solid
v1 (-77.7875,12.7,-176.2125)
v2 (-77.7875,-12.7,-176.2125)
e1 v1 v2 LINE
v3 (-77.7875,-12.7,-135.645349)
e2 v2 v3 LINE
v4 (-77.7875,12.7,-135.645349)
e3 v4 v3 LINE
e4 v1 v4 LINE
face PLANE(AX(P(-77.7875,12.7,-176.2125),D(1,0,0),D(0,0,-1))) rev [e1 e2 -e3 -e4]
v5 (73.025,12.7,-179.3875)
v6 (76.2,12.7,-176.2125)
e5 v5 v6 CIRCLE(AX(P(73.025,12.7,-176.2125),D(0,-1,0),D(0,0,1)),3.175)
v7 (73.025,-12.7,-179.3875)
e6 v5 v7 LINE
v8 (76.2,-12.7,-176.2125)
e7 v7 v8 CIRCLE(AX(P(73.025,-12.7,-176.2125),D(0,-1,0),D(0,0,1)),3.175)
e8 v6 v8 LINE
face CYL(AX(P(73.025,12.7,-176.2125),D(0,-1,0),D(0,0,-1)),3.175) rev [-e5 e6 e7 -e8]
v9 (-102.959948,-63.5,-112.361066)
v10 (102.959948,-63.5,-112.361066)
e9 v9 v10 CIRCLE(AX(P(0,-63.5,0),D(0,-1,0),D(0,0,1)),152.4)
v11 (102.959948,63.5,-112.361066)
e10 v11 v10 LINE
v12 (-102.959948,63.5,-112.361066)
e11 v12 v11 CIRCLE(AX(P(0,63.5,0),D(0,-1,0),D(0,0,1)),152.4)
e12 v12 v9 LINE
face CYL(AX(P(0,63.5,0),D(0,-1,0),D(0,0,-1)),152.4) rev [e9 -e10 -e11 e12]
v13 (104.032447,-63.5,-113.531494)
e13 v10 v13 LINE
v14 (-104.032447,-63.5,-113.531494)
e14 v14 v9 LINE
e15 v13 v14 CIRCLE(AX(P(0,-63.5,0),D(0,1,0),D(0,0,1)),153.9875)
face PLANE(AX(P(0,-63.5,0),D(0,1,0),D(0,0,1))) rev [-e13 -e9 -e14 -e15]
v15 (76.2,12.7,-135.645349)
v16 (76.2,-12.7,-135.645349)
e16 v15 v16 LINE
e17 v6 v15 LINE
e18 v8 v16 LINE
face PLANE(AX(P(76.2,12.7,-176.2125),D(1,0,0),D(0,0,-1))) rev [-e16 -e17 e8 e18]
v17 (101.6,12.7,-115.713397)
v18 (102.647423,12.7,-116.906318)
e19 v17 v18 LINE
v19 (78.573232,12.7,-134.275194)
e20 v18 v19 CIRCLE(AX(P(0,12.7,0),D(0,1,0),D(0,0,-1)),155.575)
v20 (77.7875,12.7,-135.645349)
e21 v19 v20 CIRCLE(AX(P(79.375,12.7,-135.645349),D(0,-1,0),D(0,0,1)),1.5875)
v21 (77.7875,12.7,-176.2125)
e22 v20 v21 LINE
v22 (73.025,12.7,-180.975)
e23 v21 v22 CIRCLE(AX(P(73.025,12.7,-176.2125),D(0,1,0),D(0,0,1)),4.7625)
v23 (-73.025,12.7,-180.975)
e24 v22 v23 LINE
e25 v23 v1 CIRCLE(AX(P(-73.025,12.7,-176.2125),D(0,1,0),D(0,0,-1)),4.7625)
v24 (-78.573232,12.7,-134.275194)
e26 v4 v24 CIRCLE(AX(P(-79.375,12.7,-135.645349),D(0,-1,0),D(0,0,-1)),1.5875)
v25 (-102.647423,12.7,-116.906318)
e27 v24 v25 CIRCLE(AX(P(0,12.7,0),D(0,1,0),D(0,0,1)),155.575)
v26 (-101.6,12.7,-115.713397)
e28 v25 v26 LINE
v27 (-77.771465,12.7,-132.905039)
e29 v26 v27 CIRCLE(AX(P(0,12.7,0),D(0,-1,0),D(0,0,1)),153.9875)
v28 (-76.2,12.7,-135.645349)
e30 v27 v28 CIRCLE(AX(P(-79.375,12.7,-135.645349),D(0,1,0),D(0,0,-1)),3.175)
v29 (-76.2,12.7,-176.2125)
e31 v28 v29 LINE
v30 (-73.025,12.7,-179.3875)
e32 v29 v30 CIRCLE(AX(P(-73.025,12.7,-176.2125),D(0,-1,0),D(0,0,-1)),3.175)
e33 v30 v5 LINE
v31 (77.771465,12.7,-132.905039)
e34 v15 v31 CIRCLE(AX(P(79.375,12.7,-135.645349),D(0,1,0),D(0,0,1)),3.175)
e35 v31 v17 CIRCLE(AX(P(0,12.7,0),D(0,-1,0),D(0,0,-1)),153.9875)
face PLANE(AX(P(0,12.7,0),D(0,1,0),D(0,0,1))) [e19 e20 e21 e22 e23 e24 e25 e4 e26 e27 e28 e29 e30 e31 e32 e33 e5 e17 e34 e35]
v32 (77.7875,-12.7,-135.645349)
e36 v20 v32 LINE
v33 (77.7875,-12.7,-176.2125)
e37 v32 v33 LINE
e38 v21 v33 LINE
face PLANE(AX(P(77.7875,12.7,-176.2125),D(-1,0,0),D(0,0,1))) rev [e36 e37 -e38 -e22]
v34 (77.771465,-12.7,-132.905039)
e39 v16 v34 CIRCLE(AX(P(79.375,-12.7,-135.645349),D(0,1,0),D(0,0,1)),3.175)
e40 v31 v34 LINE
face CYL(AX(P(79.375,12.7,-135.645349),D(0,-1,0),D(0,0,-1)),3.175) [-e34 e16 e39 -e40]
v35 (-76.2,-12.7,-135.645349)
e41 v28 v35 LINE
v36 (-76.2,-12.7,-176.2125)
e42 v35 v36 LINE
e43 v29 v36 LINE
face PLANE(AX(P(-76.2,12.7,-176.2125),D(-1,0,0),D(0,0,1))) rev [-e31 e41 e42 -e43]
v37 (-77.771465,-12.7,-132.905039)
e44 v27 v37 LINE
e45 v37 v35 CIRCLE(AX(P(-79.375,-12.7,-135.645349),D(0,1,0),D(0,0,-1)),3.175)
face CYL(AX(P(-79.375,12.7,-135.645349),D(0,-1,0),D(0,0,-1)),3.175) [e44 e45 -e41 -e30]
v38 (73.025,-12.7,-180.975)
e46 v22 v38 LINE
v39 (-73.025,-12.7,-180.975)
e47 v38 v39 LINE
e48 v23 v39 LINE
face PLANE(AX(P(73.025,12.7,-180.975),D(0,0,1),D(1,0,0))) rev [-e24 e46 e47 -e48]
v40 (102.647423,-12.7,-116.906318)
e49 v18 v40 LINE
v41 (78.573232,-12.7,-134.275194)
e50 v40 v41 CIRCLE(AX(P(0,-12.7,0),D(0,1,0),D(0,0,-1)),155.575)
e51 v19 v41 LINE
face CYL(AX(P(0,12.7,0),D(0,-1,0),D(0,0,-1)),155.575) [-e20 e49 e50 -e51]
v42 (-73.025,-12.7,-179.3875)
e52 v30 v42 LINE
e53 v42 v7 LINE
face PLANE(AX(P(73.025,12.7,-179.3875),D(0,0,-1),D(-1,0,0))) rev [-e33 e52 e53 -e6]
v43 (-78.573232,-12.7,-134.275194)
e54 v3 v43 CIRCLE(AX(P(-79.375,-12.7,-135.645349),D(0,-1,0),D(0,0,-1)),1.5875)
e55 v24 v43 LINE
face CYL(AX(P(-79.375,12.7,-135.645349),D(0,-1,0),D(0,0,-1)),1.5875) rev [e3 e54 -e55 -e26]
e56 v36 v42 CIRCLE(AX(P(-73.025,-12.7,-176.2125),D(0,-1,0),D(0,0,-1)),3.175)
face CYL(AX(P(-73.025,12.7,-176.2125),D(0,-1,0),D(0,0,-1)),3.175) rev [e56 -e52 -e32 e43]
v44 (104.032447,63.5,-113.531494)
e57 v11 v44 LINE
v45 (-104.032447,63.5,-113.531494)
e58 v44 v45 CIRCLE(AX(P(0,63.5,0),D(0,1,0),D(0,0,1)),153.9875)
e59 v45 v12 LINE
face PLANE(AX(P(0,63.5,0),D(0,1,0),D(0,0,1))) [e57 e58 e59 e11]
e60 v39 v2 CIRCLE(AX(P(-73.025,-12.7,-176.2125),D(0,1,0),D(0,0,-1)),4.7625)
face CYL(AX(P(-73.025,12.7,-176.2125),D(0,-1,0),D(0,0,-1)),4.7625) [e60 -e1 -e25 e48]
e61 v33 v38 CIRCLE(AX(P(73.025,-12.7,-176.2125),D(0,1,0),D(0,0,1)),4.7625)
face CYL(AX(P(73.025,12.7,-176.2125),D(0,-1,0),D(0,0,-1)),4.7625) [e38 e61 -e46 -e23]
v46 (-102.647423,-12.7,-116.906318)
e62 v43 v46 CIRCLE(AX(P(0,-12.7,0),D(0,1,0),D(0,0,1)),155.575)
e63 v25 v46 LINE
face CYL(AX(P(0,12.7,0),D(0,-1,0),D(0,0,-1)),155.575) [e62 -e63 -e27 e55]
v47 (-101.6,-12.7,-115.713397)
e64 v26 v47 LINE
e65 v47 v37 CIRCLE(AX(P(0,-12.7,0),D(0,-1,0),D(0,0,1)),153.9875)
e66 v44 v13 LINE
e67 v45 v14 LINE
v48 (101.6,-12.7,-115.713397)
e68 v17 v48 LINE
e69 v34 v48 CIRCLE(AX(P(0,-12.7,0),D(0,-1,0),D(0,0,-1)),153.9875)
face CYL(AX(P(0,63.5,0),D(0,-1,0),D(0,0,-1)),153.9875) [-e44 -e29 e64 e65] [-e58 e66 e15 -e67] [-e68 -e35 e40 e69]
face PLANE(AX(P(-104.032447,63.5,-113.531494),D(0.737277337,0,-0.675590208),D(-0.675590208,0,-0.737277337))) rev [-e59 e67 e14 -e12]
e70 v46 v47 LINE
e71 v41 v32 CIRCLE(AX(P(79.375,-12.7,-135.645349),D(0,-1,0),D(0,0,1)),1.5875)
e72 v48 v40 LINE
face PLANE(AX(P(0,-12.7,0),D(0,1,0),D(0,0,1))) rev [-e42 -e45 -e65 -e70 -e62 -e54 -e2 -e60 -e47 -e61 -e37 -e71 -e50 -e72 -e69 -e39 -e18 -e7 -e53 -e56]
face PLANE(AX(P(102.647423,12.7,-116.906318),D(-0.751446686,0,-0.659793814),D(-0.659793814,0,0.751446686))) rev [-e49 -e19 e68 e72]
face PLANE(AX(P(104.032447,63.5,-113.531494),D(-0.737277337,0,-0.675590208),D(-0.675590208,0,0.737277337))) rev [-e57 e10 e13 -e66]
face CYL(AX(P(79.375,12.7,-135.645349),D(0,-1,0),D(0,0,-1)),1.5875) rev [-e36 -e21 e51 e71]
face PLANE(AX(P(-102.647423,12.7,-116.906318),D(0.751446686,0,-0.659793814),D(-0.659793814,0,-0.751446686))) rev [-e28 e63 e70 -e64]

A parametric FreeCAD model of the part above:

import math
import FreeCAD as App
import Part
import Sketcher
Q = App.Units.Quantity

doc = App.newDocument("Part")
body = doc.addObject("PartDesign::Body", "Body")

sketch1 = doc.addObject("Sketcher::SketchObject", "Sketch")
body.addObject(sketch1)
sketch1.AttachmentSupport = (doc.XZ_Plane, [""])
sketch1.MapMode = "FlatFace"
sketch1.addGeometry([
    Part.LineSegment(App.Vector(103, -112.4, 0), App.Vector(104, -113.5, 0)),
    Part.ArcOfCircle(Part.Circle(App.Vector(0, 0, 0), App.Vector(0, 0, 1), 154), math.radians(-133), math.radians(-47)),
    Part.LineSegment(App.Vector(-104, -113.5, 0), App.Vector(-103, -112.4, 0)),
    Part.ArcOfCircle(Part.Circle(App.Vector(0, 0, 0), App.Vector(0, 0, 1), 152.4), math.radians(-132), math.radians(-48)),
], False)
sketch1.addConstraint([
    Sketcher.Constraint("Coincident", 0, 2, 1, 2),
    Sketcher.Constraint("Coincident", 1, 1, 2, 1),
    Sketcher.Constraint("Coincident", 2, 2, 3, 1),
    Sketcher.Constraint("Coincident", 3, 2, 0, 1),
    Sketcher.Constraint("Coincident", 1, 3, -1, 1),
    Sketcher.Constraint("Coincident", 3, 3, -1, 1),
    Sketcher.Constraint("Horizontal", 0, 2, 1, 1),
    Sketcher.Constraint("Horizontal", 2, 2, 3, 2),
    Sketcher.Constraint("Radius", 3, Q("6 in")),
    Sketcher.Constraint("Radius", 1, Q("6.0625 in")),
    Sketcher.Constraint("Angle", 0, Q("-47.5 deg")),
    Sketcher.Constraint("DistanceX", -1, 1, 0, 2, Q("104.032447 mm")),
])
pad1 = doc.addObject("PartDesign::Pad", "Pad")
body.addObject(pad1)
pad1.Profile = sketch1
pad1.Length = Q("5 in")
pad1.Midplane = True

sketch2 = doc.addObject("Sketcher::SketchObject", "Sketch001")
body.addObject(sketch2)
sketch2.AttachmentSupport = (doc.XZ_Plane, [""])
sketch2.MapMode = "FlatFace"
sketch2.addGeometry([
    Part.LineSegment(App.Vector(-73, -179.4, 0), App.Vector(73, -179.4, 0)),
    Part.ArcOfCircle(Part.Circle(App.Vector(73, -176.2, 0), App.Vector(0, 0, 1), 3.2), math.radians(-90), math.radians(0)),
    Part.LineSegment(App.Vector(76.2, -176.2, 0), App.Vector(76.2, -135.6, 0)),
    Part.ArcOfCircle(Part.Circle(App.Vector(79.4, -135.6, 0), App.Vector(0, 0, 1), 3.2), math.radians(120), math.radians(180)),
    Part.ArcOfCircle(Part.Circle(App.Vector(0, 0, 0), App.Vector(0, 0, 1), 154), math.radians(-59.67), math.radians(-48.72)),
    Part.LineSegment(App.Vector(101.6, -115.7, 0), App.Vector(102.6, -116.9, 0)),
    Part.ArcOfCircle(Part.Circle(App.Vector(0, 0, 0), App.Vector(0, 0, 1), 155.6), math.radians(-59.67), math.radians(-48.72)),
    Part.ArcOfCircle(Part.Circle(App.Vector(79.4, -135.6, 0), App.Vector(0, 0, 1), 1.6), math.radians(120), math.radians(180)),
    Part.LineSegment(App.Vector(77.8, -135.6, 0), App.Vector(77.8, -176.2, 0)),
    Part.ArcOfCircle(Part.Circle(App.Vector(73, -176.2, 0), App.Vector(0, 0, 1), 4.8), math.radians(-90), math.radians(0)),
    Part.LineSegment(App.Vector(73, -181, 0), App.Vector(-73, -181, 0)),
    Part.ArcOfCircle(Part.Circle(App.Vector(-73, -176.2, 0), App.Vector(0, 0, 1), 4.8), math.radians(-180), math.radians(-90)),
    Part.LineSegment(App.Vector(-77.8, -176.2, 0), App.Vector(-77.8, -135.6, 0)),
    Part.ArcOfCircle(Part.Circle(App.Vector(-79.4, -135.6, 0), App.Vector(0, 0, 1), 1.6), math.radians(0), math.radians(60)),
    Part.ArcOfCircle(Part.Circle(App.Vector(0, 0, 0), App.Vector(0, 0, 1), 155.6), math.radians(-131.28), math.radians(-120.33)),
    Part.LineSegment(App.Vector(-102.6, -116.9, 0), App.Vector(-101.6, -115.7, 0)),
    Part.ArcOfCircle(Part.Circle(App.Vector(0, 0, 0), App.Vector(0, 0, 1), 154), math.radians(-131.28), math.radians(-120.33)),
    Part.ArcOfCircle(Part.Circle(App.Vector(-79.4, -135.6, 0), App.Vector(0, 0, 1), 3.2), math.radians(0), math.radians(60)),
    Part.LineSegment(App.Vector(-76.2, -135.6, 0), App.Vector(-76.2, -176.2, 0)),
    Part.ArcOfCircle(Part.Circle(App.Vector(-73, -176.2, 0), App.Vector(0, 0, 1), 3.2), math.radians(-180), math.radians(-90)),
], False)
sketch2.addConstraint([
    Sketcher.Constraint("Tangent", 0, 2, 1, 1),
    Sketcher.Constraint("Tangent", 1, 2, 2, 1),
    Sketcher.Constraint("Tangent", 2, 2, 3, 2),
    Sketcher.Constraint("Tangent", 3, 1, 4, 1),
    Sketcher.Constraint("Coincident", 4, 2, 5, 1),
    Sketcher.Constraint("Coincident", 5, 2, 6, 2),
    Sketcher.Constraint("Tangent", 6, 1, 7, 1),
    Sketcher.Constraint("Tangent", 7, 2, 8, 1),
    Sketcher.Constraint("Tangent", 8, 2, 9, 2),
    Sketcher.Constraint("Tangent", 9, 1, 10, 1),
    Sketcher.Constraint("Tangent", 10, 2, 11, 2),
    Sketcher.Constraint("Tangent", 11, 1, 12, 1),
    Sketcher.Constraint("Tangent", 12, 2, 13, 1),
    Sketcher.Constraint("Tangent", 13, 2, 14, 2),
    Sketcher.Constraint("Coincident", 14, 1, 15, 1),
    Sketcher.Constraint("Coincident", 15, 2, 16, 1),
    Sketcher.Constraint("Tangent", 16, 2, 17, 2),
    Sketcher.Constraint("Tangent", 17, 1, 18, 1),
    Sketcher.Constraint("Tangent", 18, 2, 19, 1),
    Sketcher.Constraint("Tangent", 19, 2, 0, 1),
    Sketcher.Constraint("Horizontal", 0),
    Sketcher.Constraint("Vertical", 2),
    Sketcher.Constraint("Vertical", 8),
    Sketcher.Constraint("Horizontal", 10),
    Sketcher.Constraint("Vertical", 12),
    Sketcher.Constraint("Vertical", 18),
    Sketcher.Constraint("Coincident", 4, 3, -1, 1),
    Sketcher.Constraint("Coincident", 6, 3, -1, 1),
    Sketcher.Constraint("Coincident", 14, 3, -1, 1),
    Sketcher.Constraint("Coincident", 16, 3, -1, 1),
    Sketcher.Constraint("Coincident", 7, 3, 3, 3),
    Sketcher.Constraint("Coincident", 9, 3, 1, 3),
    Sketcher.Constraint("Coincident", 17, 3, 13, 3),
    Sketcher.Constraint("Coincident", 19, 3, 11, 3),
    Sketcher.Constraint("Equal", 1, 3),
    Sketcher.Constraint("Equal", 9, 11),
    Sketcher.Constraint("Equal", 7, 13),
    Sketcher.Constraint("Equal", 6, 14),
    Sketcher.Constraint("Horizontal", 7, 3, 13, 3),
    Sketcher.Constraint("Horizontal", 5, 2, 14, 1),
    Sketcher.Constraint("Horizontal", 4, 2, 15, 2),
    Sketcher.Constraint("DistanceX", -1, 1, 1, 2, Q("3 in")),
    Sketcher.Constraint("DistanceX", -1, 1, 4, 2, Q("4 in")),
    Sketcher.Constraint("Radius", 1, Q("0.125 in")),
    Sketcher.Constraint("Radius", 4, Q("6.0625 in")),
    Sketcher.Constraint("Radius", 6, Q("6.125 in")),
    Sketcher.Constraint("DistanceY", 1, 3, -1, 1, Q("6.9375 in")),
    Sketcher.Constraint("DistanceY", 5, 2, -1, 1, Q("116.906318 mm")),
])
pad2 = doc.addObject("PartDesign::Pad", "Pad001")
body.addObject(pad2)
pad2.Profile = sketch2
pad2.Length = Q("1 in")
pad2.Midplane = True

doc.recompute()
